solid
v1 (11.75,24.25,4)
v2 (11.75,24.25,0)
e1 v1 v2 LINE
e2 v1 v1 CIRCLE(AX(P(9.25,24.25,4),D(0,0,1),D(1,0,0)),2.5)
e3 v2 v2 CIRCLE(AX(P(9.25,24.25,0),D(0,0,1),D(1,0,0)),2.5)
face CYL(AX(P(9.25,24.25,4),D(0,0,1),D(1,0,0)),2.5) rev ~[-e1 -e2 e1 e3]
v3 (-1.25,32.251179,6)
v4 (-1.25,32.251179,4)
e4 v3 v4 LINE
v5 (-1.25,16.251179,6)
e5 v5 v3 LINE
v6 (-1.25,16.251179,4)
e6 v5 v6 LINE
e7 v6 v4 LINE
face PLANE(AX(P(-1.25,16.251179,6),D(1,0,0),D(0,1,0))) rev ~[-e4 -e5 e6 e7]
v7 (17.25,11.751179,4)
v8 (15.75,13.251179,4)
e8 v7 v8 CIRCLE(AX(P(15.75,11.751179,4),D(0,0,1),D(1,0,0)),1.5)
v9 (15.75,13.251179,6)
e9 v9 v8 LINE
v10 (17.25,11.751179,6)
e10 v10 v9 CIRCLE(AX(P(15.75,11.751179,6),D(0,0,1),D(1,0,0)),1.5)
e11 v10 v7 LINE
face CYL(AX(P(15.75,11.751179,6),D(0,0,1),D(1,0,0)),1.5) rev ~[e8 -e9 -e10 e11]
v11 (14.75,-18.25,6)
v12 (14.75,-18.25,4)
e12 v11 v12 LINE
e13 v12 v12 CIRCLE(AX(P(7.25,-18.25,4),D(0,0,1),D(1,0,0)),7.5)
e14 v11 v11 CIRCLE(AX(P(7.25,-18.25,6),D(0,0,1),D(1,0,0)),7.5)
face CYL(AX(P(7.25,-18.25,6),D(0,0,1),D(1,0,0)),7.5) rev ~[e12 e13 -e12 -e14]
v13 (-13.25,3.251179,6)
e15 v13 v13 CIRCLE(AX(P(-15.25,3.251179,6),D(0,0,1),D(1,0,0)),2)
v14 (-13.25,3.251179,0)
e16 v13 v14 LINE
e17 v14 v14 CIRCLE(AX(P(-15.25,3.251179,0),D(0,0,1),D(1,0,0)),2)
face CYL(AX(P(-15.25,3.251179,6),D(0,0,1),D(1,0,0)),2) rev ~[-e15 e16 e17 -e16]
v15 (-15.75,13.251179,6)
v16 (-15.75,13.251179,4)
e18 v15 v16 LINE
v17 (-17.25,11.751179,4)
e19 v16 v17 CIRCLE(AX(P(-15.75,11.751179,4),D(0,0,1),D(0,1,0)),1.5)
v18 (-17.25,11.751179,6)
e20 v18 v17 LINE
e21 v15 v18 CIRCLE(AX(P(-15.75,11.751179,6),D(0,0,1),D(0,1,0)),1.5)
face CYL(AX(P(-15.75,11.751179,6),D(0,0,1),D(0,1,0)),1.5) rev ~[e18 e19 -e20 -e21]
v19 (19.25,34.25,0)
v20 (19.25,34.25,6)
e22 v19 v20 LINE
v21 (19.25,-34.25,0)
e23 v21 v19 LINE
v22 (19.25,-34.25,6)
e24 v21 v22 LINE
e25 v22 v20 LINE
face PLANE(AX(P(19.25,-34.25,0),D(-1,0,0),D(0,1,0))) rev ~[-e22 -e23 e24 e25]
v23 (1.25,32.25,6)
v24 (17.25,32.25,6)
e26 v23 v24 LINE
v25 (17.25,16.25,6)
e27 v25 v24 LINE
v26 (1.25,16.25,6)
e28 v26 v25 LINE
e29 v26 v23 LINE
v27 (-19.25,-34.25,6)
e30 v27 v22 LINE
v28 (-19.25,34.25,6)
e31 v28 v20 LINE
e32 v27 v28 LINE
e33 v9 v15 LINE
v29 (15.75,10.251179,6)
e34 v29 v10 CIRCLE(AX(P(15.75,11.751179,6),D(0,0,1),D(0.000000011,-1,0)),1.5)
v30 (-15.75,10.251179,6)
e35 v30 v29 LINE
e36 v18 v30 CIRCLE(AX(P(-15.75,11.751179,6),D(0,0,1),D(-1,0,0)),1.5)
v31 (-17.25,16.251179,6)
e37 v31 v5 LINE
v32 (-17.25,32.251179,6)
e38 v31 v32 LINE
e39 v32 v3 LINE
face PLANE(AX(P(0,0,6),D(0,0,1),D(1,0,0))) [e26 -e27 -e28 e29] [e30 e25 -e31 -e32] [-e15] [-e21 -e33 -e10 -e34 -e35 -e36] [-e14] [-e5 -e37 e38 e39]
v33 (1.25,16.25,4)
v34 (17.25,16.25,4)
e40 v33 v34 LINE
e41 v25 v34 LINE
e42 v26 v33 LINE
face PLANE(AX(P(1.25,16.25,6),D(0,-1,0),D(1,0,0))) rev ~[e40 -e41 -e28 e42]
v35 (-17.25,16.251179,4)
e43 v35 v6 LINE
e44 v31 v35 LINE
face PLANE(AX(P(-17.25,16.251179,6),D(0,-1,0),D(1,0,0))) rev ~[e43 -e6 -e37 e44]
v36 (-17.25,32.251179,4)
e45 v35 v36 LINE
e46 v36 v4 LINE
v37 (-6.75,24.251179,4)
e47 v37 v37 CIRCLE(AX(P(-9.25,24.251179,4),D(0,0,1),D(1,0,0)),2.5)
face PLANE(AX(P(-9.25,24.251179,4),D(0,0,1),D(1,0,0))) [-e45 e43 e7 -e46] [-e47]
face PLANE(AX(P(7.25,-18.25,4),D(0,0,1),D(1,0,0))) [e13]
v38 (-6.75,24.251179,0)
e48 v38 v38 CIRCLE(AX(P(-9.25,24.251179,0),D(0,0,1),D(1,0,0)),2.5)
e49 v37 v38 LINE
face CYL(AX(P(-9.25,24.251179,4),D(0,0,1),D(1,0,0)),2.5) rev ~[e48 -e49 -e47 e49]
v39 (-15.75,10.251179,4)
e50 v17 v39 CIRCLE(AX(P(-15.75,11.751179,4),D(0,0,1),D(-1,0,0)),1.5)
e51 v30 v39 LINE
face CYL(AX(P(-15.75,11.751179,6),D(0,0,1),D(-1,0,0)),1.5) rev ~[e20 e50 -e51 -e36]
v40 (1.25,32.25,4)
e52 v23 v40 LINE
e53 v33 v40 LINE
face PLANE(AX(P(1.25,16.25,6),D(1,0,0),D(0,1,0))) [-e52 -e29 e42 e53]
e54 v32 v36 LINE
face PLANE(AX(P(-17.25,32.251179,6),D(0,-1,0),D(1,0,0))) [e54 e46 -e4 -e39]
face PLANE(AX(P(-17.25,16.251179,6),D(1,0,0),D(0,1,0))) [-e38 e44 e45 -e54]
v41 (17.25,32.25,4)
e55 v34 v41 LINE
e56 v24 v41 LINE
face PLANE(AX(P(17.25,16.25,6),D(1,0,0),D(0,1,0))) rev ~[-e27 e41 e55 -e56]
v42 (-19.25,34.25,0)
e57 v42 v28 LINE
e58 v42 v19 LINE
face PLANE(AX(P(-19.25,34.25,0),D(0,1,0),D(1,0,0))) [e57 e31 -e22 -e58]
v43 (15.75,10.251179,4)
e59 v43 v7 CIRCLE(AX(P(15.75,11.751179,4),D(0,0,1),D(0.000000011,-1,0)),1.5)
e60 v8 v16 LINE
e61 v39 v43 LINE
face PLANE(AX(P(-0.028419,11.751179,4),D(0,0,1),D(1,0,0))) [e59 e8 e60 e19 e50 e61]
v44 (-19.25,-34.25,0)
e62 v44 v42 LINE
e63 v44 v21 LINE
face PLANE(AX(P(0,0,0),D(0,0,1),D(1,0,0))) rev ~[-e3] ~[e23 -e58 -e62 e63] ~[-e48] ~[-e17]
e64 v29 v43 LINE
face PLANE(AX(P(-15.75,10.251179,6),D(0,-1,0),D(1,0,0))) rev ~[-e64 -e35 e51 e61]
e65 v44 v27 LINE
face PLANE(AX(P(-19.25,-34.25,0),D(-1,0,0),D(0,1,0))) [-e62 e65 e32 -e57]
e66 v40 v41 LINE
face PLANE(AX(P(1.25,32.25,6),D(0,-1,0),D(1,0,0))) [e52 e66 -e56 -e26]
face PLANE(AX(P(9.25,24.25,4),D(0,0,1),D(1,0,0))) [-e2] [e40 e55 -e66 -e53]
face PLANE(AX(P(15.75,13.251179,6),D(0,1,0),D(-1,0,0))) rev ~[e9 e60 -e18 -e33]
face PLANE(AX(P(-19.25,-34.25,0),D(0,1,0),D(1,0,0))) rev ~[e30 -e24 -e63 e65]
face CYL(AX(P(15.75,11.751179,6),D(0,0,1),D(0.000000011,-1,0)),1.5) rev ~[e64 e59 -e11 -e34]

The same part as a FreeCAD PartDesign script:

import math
import FreeCAD as App
import Part
import Sketcher
from FreeCAD import Vector


def add_polygon(sketch, points):
    """Adds a closed chain of lines whose ends are joined by coincident constraints."""
    first, n = sketch.GeometryCount, len(points)
    for a, b in zip(points, points[1:] + points[:1]):
        sketch.addGeometry(Part.LineSegment(App.Vector(*a, 0), App.Vector(*b, 0)), False)
    for i in range(n):
        sketch.addConstraint(Sketcher.Constraint("Coincident", first + i, 2, first + (i + 1) % n, 1))

doc = App.newDocument("Part")
body = doc.addObject("PartDesign::Body", "Body")

# Sketch on XY plane
sketch1 = doc.addObject("Sketcher::SketchObject", "Sketch")
body.addObject(sketch1)
sketch1.AttachmentSupport = (doc.XY_Plane, [""])
sketch1.MapMode = "FlatFace"
add_polygon(sketch1, [(-19, 34), (-19, -34), (19, -34), (19, 34)])  # lines 0-3
sketch1.addConstraint([
    Sketcher.Constraint("Vertical", 0),
    Sketcher.Constraint("Horizontal", 1),
    Sketcher.Constraint("Vertical", 2),
    Sketcher.Constraint("Horizontal", 3),
    Sketcher.Constraint("Symmetric", 0, 2, 2, 2, -1, 1),
    Sketcher.Constraint("DistanceX", 1, 1, 1, 2, 38.5),
    Sketcher.Constraint("DistanceY", 0, 2, 0, 1, 68.5),
])
pad1 = doc.addObject("PartDesign::Pad", "Pad")
body.addObject(pad1)
pad1.Profile = sketch1
pad1.Length = 6

# Sketch on XY plane
sketch2 = doc.addObject("Sketcher::SketchObject", "Sketch001")
body.addObject(sketch2)
sketch2.AttachmentSupport = (doc.XY_Plane, [""])
sketch2.MapMode = "FlatFace"
sketch2.AttachmentOffset = App.Placement(Vector(0, 0, 6), App.Rotation())
add_polygon(sketch2, [(-17, 32), (-17, 16), (-1, 16), (-1, 32)])  # lines 0-3
add_polygon(sketch2, [(1, 32), (1, 16), (17, 16), (17, 32)])  # lines 4-7
sketch2.addConstraint([
    Sketcher.Constraint("Vertical", 0),
    Sketcher.Constraint("Horizontal", 1),
    Sketcher.Constraint("Vertical", 2),
    Sketcher.Constraint("Horizontal", 3),
    Sketcher.Constraint("Vertical", 4),
    Sketcher.Constraint("Horizontal", 5),
    Sketcher.Constraint("Vertical", 6),
    Sketcher.Constraint("Horizontal", 7),
    Sketcher.Constraint("Equal", 3, 5),
    Sketcher.Constraint("Equal", 7, 0),
    Sketcher.Constraint("Equal", 2, 4),
    Sketcher.Constraint("DistanceX", 1, 1, 1, 2, 16.0),
    Sketcher.Constraint("DistanceX", 1, 2, 4, 2, 2.5),
    Sketcher.Constraint("DistanceX", 0, 2, -1, 1, 17.25),
    Sketcher.Constraint("DistanceY", -1, 1, 4, 2, 16.25),
    Sketcher.Constraint("DistanceY", -1, 1, 0, 2, 16.251179),
])
pocket1 = doc.addObject("PartDesign::Pocket", "Pocket")
body.addObject(pocket1)
pocket1.Profile = sketch2
pocket1.Length = 2

# Sketch on XY plane
sketch3 = doc.addObject("Sketcher::SketchObject", "Sketch002")
body.addObject(sketch3)
sketch3.AttachmentSupport = (doc.XY_Plane, [""])
sketch3.MapMode = "FlatFace"
sketch3.AttachmentOffset = App.Placement(Vector(0, 0, 6), App.Rotation())
sketch3.addGeometry([
    Part.LineSegment(Vector(15.8, 13.3, 0), Vector(-15.8, 13.3, 0)),  # 0
    Part.ArcOfCircle(Part.Circle(Vector(-15.8, 11.8, 0), Vector(0, 0, 1), 1.5), math.radians(90), math.radians(180)),  # 1
    Part.ArcOfCircle(Part.Circle(Vector(-15.8, 11.8, 0), Vector(0, 0, 1), 1.5), math.radians(180), math.radians(270)),  # 2
    Part.LineSegment(Vector(-15.8, 10.3, 0), Vector(15.8, 10.3, 0)),  # 3
    Part.ArcOfCircle(Part.Circle(Vector(15.8, 11.8, 0), Vector(0, 0, 1), 1.5), math.radians(-90), math.radians(0)),  # 4
    Part.ArcOfCircle(Part.Circle(Vector(15.8, 11.8, 0), Vector(0, 0, 1), 1.5), math.radians(0), math.radians(90)),  # 5
], False)
sketch3.addConstraint([
    Sketcher.Constraint("Tangent", 0, 2, 1, 1),
    Sketcher.Constraint("Tangent", 1, 2, 2, 1),
    Sketcher.Constraint("Tangent", 2, 2, 3, 1),
    Sketcher.Constraint("Tangent", 3, 2, 4, 1),
    Sketcher.Constraint("Tangent", 4, 2, 5, 1),
    Sketcher.Constraint("Tangent", 5, 2, 0, 1),
    Sketcher.Constraint("Horizontal", 0),
    Sketcher.Constraint("Horizontal", 3),
    Sketcher.Constraint("Equal", 1, 2),
    Sketcher.Constraint("Equal", 2, 4),
    Sketcher.Constraint("Symmetric", 1, 2, 4, 2, -2),
    Sketcher.Constraint("Horizontal", 5, 3, 1, 2),
    Sketcher.Constraint("Radius", 1, 1.5),
    Sketcher.Constraint("DistanceX", 0, 2, 0, 1, 31.5),
    Sketcher.Constraint("DistanceY", -1, 1, 1, 3, 11.751179),
])
pocket2 = doc.addObject("PartDesign::Pocket", "Pocket001")
body.addObject(pocket2)
pocket2.Profile = sketch3
pocket2.Length = 2

# Sketch on XY plane
sketch4 = doc.addObject("Sketcher::SketchObject", "Sketch003")
body.addObject(sketch4)
sketch4.AttachmentSupport = (doc.XY_Plane, [""])
sketch4.MapMode = "FlatFace"
sketch4.AttachmentOffset = App.Placement(Vector(0, 0, 6), App.Rotation())
sketch4.addGeometry(Part.Circle(Vector(7, -18, 0), Vector(0, 0, 1), 8), False)
sketch4.addConstraint([
    Sketcher.Constraint("Diameter", 0, 15.0),
    Sketcher.Constraint("DistanceX", -1, 1, 0, 3, 7.25),
    Sketcher.Constraint("DistanceY", 0, 3, -1, 1, 18.25),
])
pocket3 = doc.addObject("PartDesign::Pocket", "Pocket002")
body.addObject(pocket3)
pocket3.Profile = sketch4
pocket3.Length = 2

# Sketch on XY plane
sketch5 = doc.addObject("Sketcher::SketchObject", "Sketch004")
body.addObject(sketch5)
sketch5.AttachmentSupport = (doc.XY_Plane, [""])
sketch5.MapMode = "FlatFace"
sketch5.AttachmentOffset = App.Placement(Vector(0, 0, 6), App.Rotation())
sketch5.addGeometry(Part.Circle(Vector(-15.2, 3.3, 0), Vector(0, 0, 1), 2), False)
sketch5.addConstraint([
    Sketcher.Constraint("Diameter", 0, 4.0),
    Sketcher.Constraint("DistanceX", 0, 3, -1, 1, 15.25),
    Sketcher.Constraint("DistanceY", -1, 1, 0, 3, 3.251179),
])
pocket4 = doc.addObject("PartDesign::Pocket", "Pocket003")
body.addObject(pocket4)
pocket4.Profile = sketch5
pocket4.Length = 8

# Sketch on XY plane
sketch6 = doc.addObject("Sketcher::SketchObject", "Sketch005")
body.addObject(sketch6)
sketch6.AttachmentSupport = (doc.XY_Plane, [""])
sketch6.MapMode = "FlatFace"
sketch6.AttachmentOffset = App.Placement(Vector(0, 0, 4), App.Rotation())
sketch6.addGeometry(Part.Circle(Vector(-9.2, 24.3, 0), Vector(0, 0, 1), 2.5), False)
sketch6.addConstraint([
    Sketcher.Constraint("Diameter", 0, 5.0),
    Sketcher.Constraint("DistanceX", 0, 3, -1, 1, 9.25),
    Sketcher.Constraint("DistanceY", -1, 1, 0, 3, 24.251179),
])
pocket5 = doc.addObject("PartDesign::Pocket", "Pocket004")
body.addObject(pocket5)
pocket5.Profile = sketch6
pocket5.Length = 25

# Sketch on XY plane
sketch7 = doc.addObject("Sketcher::SketchObject", "Sketch006")
body.addObject(sketch7)
sketch7.AttachmentSupport = (doc.XY_Plane, [""])
sketch7.MapMode = "FlatFace"
sketch7.AttachmentOffset = App.Placement(Vector(0, 0, 4), App.Rotation())
sketch7.addGeometry(Part.Circle(Vector(9.2, 24.2, 0), Vector(0, 0, 1), 2.5), False)
sketch7.addConstraint([
    Sketcher.Constraint("Diameter", 0, 5.0),
    Sketcher.Constraint("DistanceX", -1, 1, 0, 3, 9.25),
    Sketcher.Constraint("DistanceY", -1, 1, 0, 3, 24.25),
])
pocket6 = doc.addObject("PartDesign::Pocket", "Pocket005")
body.addObject(pocket6)
pocket6.Profile = sketch7
pocket6.Length = 25

doc.recompute()
